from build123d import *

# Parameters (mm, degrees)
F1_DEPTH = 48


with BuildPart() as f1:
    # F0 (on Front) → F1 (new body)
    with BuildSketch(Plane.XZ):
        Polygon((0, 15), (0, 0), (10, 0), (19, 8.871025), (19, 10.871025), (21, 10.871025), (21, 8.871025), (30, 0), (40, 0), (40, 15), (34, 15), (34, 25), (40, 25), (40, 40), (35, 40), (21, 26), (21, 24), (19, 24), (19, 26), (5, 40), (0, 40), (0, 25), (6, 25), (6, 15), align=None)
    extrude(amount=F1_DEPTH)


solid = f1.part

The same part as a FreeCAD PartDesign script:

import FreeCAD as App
import Part
import Sketcher
from FreeCAD import Vector
Q = App.Units.Quantity

doc = App.newDocument("Part")
body = doc.addObject("PartDesign::Body", "Body")

sketch1 = doc.addObject("Sketcher::SketchObject", "Sketch")
body.addObject(sketch1)
sketch1.AttachmentSupport = (doc.XZ_Plane, [""])
sketch1.MapMode = "FlatFace"
sketch1.addGeometry([
    Part.LineSegment(Vector(0, 15, 0), Vector(0, 0, 0)),
    Part.LineSegment(Vector(0, 0, 0), Vector(10, 0, 0)),
    Part.LineSegment(Vector(10, 0, 0), Vector(19, 8.9, 0)),
    Part.LineSegment(Vector(19, 8.9, 0), Vector(19, 10.9, 0)),
    Part.LineSegment(Vector(19, 10.9, 0), Vector(21, 10.9, 0)),
    Part.LineSegment(Vector(21, 10.9, 0), Vector(21, 8.9, 0)),
    Part.LineSegment(Vector(21, 8.9, 0), Vector(30, 0, 0)),
    Part.LineSegment(Vector(30, 0, 0), Vector(40, 0, 0)),
    Part.LineSegment(Vector(40, 0, 0), Vector(40, 15, 0)),
    Part.LineSegment(Vector(40, 15, 0), Vector(34, 15, 0)),
    Part.LineSegment(Vector(34, 15, 0), Vector(34, 25, 0)),
    Part.LineSegment(Vector(34, 25, 0), Vector(40, 25, 0)),
    Part.LineSegment(Vector(40, 25, 0), Vector(40, 40, 0)),
    Part.LineSegment(Vector(40, 40, 0), Vector(35, 40, 0)),
    Part.LineSegment(Vector(35, 40, 0), Vector(21, 26, 0)),
    Part.LineSegment(Vector(21, 26, 0), Vector(21, 24, 0)),
    Part.LineSegment(Vector(21, 24, 0), Vector(19, 24, 0)),
    Part.LineSegment(Vector(19, 24, 0), Vector(19, 26, 0)),
    Part.LineSegment(Vector(19, 26, 0), Vector(5, 40, 0)),
    Part.LineSegment(Vector(5, 40, 0), Vector(0, 40, 0)),
    Part.LineSegment(Vector(0, 40, 0), Vector(0, 25, 0)),
    Part.LineSegment(Vector(0, 25, 0), Vector(6, 25, 0)),
    Part.LineSegment(Vector(6, 25, 0), Vector(6, 15, 0)),
    Part.LineSegment(Vector(6, 15, 0), Vector(0, 15, 0)),
], False)
sketch1.addConstraint([
    Sketcher.Constraint("Coincident", 0, 2, 1, 1),
    Sketcher.Constraint("Coincident", 1, 2, 2, 1),
    Sketcher.Constraint("Coincident", 2, 2, 3, 1),
    Sketcher.Constraint("Coincident", 3, 2, 4, 1),
    Sketcher.Constraint("Coincident", 4, 2, 5, 1),
    Sketcher.Constraint("Coincident", 5, 2, 6, 1),
    Sketcher.Constraint("Coincident", 6, 2, 7, 1),
    Sketcher.Constraint("Coincident", 7, 2, 8, 1),
    Sketcher.Constraint("Coincident", 8, 2, 9, 1),
    Sketcher.Constraint("Coincident", 9, 2, 10, 1),
    Sketcher.Constraint("Coincident", 10, 2, 11, 1),
    Sketcher.Constraint("Coincident", 11, 2, 12, 1),
    Sketcher.Constraint("Coincident", 12, 2, 13, 1),
    Sketcher.Constraint("Coincident", 13, 2, 14, 1),
    Sketcher.Constraint("Coincident", 14, 2, 15, 1),
    Sketcher.Constraint("Coincident", 15, 2, 16, 1),
    Sketcher.Constraint("Coincident", 16, 2, 17, 1),
    Sketcher.Constraint("Coincident", 17, 2, 18, 1),
    Sketcher.Constraint("Coincident", 18, 2, 19, 1),
    Sketcher.Constraint("Coincident", 19, 2, 20, 1),
    Sketcher.Constraint("Coincident", 20, 2, 21, 1),
    Sketcher.Constraint("Coincident", 21, 2, 22, 1),
    Sketcher.Constraint("Coincident", 22, 2, 23, 1),
    Sketcher.Constraint("Coincident", 23, 2, 0, 1),
    Sketcher.Constraint("Vertical", 0),
    Sketcher.Constraint("Horizontal", 1),
    Sketcher.Constraint("Vertical", 3),
    Sketcher.Constraint("Horizontal", 4),
    Sketcher.Constraint("Vertical", 5),
    Sketcher.Constraint("Horizontal", 7),
    Sketcher.Constraint("Vertical", 8),
    Sketcher.Constraint("Horizontal", 9),
    Sketcher.Constraint("Vertical", 10),
    Sketcher.Constraint("Horizontal", 11),
    Sketcher.Constraint("Vertical", 12),
    Sketcher.Constraint("Horizontal", 13),
    Sketcher.Constraint("Vertical", 15),
    Sketcher.Constraint("Horizontal", 16),
    Sketcher.Constraint("Vertical", 17),
    Sketcher.Constraint("Horizontal", 19),
    Sketcher.Constraint("Vertical", 20),
    Sketcher.Constraint("Horizontal", 21),
    Sketcher.Constraint("Vertical", 22),
    Sketcher.Constraint("Horizontal", 23),
    Sketcher.Constraint("Coincident", 0, 2, -1, 1),
    Sketcher.Constraint("PointOnObject", 6, 2, -1),
    Sketcher.Constraint("PointOnObject", 19, 2, -2),
    Sketcher.Constraint("Perpendicular", 14, 18),
    Sketcher.Constraint("Horizontal", 2, 2, 5, 2),
    Sketcher.Constraint("Horizontal", 14, 2, 17, 2),
    Sketcher.Constraint("Horizontal", 13, 2, 18, 2),
    Sketcher.Constraint("Horizontal", 11, 2, 20, 2),
    Sketcher.Constraint("Horizontal", 9, 2, 22, 2),
    Sketcher.Constraint("Vertical", 8, 2, 11, 2),
    Sketcher.Constraint("Vertical", 5, 2, 14, 2),
    Sketcher.Constraint("Vertical", 3, 2, 16, 2),
    Sketcher.Constraint("Equal", 1, 7),
    Sketcher.Constraint("Equal", 13, 19),
    Sketcher.Constraint("Equal", 11, 21),
    Sketcher.Constraint("Equal", 16, 3),
    Sketcher.Constraint("Equal", 7, 10),
    Sketcher.Constraint("Equal", 8, 12),
    Sketcher.Constraint("Equal", 5, 15),
    Sketcher.Constraint("Equal", 2, 6),
    Sketcher.Constraint("DistanceX", 1, 1, 1, 2, Q("10 mm")),
    Sketcher.Constraint("DistanceX", 4, 1, 4, 2, Q("2 mm")),
    Sketcher.Constraint("DistanceX", 9, 2, 9, 1, Q("6 mm")),
    Sketcher.Constraint("DistanceX", 13, 2, 13, 1, Q("5 mm")),
    Sketcher.Constraint("DistanceY", 0, 2, 0, 1, Q("15 mm")),
    Sketcher.Constraint("DistanceX", -1, 1, 2, 2, Q("19 mm")),
    Sketcher.Constraint("Distance", 2, Q("12.637052 mm")),
])
pad1 = doc.addObject("PartDesign::Pad", "Pad")
body.addObject(pad1)
pad1.Profile = sketch1
pad1.Length = 48

doc.recompute()
